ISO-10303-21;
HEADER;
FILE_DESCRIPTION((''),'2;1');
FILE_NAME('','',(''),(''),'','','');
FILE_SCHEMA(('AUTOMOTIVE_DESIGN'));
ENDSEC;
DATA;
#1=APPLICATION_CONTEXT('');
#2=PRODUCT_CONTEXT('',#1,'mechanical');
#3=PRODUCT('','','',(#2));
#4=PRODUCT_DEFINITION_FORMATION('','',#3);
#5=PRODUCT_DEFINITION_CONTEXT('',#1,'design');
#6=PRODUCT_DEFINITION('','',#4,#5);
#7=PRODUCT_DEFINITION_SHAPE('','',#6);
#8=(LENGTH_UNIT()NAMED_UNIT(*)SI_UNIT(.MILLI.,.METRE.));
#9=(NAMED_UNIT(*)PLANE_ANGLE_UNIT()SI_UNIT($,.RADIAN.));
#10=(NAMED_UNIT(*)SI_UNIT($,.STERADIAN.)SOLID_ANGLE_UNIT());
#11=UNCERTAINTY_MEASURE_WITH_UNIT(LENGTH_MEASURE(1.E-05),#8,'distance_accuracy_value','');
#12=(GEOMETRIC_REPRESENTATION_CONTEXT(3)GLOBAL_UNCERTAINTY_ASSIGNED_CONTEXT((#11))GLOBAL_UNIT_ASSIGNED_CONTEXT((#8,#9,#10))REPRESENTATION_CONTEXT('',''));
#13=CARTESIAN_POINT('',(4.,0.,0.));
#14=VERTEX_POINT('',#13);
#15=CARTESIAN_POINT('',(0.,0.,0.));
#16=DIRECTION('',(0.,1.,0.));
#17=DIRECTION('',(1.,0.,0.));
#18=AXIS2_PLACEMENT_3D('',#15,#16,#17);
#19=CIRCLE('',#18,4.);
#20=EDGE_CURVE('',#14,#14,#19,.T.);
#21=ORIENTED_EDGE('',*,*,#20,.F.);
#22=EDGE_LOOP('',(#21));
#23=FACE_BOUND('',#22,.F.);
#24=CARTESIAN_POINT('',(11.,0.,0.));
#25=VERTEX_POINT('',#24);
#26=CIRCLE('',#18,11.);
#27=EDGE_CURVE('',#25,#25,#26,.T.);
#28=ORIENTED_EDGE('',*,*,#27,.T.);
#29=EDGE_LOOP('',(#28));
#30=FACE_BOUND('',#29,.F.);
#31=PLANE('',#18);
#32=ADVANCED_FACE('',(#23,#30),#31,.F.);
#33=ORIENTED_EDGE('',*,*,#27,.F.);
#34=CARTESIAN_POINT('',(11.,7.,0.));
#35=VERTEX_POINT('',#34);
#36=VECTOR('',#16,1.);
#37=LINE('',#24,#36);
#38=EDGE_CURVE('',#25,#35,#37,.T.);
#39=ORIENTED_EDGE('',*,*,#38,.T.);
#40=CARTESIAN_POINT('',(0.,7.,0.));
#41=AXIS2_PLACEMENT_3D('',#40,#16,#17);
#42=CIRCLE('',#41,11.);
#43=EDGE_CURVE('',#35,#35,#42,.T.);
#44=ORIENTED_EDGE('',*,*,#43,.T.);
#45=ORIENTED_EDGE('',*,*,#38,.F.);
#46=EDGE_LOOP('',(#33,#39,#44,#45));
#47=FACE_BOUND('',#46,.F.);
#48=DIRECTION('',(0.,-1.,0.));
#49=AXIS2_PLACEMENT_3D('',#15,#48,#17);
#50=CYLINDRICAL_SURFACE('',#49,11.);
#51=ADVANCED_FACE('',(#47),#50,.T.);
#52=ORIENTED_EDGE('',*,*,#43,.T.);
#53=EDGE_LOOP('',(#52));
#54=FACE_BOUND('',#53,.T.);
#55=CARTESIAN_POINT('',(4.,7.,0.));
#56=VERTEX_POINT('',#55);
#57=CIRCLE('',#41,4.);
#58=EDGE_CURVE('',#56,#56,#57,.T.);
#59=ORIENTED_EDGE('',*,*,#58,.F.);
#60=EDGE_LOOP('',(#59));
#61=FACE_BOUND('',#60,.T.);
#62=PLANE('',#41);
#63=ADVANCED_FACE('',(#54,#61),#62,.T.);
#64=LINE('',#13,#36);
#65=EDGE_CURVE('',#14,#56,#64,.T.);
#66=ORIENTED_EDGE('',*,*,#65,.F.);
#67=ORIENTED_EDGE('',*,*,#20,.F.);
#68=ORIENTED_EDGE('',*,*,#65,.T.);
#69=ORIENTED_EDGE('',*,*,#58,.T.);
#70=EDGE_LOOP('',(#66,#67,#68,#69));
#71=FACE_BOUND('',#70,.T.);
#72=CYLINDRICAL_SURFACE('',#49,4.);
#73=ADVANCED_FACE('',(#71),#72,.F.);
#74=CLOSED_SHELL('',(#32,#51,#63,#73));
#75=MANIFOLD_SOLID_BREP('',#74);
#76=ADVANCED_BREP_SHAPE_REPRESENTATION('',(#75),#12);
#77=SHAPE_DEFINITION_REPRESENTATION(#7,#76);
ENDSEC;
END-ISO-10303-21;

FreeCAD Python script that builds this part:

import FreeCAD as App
import Part
import Sketcher
Q = App.Units.Quantity

doc = App.newDocument("Part")
params = doc.addObject("Spreadsheet::Sheet", "Params")
for row, (alias, value) in enumerate([
    ("sketch1_diameter", "22 mm"),
    ("sketch1_diameter2", "8 mm"),
    ("pad1_length", "7 mm"),
], start=1):
    params.set(f"A{row}", alias)
    params.set(f"B{row}", "=" + value)
    params.setAlias(f"B{row}", alias)

body = doc.addObject("PartDesign::Body", "Body")

# Sketch on XZ plane
sketch1 = body.newObject("Sketcher::SketchObject", "Sketch")
sketch1.AttachmentSupport = (doc.getObject("XZ_Plane"), [""])
sketch1.MapMode = "FlatFace"
sketch1.addGeometry(Part.Circle(App.Vector(0, 0, 0), App.Vector(0, 0, 1), 11), False)
sketch1.addGeometry(Part.Circle(App.Vector(0, 0, 0), App.Vector(0, 0, 1), 4), False)
sketch1.addConstraint(Sketcher.Constraint("Coincident", 0, 3, -1, 1))
sketch1.addConstraint(Sketcher.Constraint("Coincident", 1, 3, -1, 1))
sketch1.addConstraint(Sketcher.Constraint("Diameter", 0, Q("22 mm")))
sketch1.addConstraint(Sketcher.Constraint("Diameter", 1, Q("8 mm")))
sketch1.setExpression("Constraints[2]", "Params.sketch1_diameter")
sketch1.setExpression("Constraints[3]", "Params.sketch1_diameter2")
pad1 = body.newObject("PartDesign::Pad", "Pad")
pad1.Profile = sketch1
pad1.setExpression("Length", "Params.pad1_length")
pad1.Reversed = True

doc.recompute()
